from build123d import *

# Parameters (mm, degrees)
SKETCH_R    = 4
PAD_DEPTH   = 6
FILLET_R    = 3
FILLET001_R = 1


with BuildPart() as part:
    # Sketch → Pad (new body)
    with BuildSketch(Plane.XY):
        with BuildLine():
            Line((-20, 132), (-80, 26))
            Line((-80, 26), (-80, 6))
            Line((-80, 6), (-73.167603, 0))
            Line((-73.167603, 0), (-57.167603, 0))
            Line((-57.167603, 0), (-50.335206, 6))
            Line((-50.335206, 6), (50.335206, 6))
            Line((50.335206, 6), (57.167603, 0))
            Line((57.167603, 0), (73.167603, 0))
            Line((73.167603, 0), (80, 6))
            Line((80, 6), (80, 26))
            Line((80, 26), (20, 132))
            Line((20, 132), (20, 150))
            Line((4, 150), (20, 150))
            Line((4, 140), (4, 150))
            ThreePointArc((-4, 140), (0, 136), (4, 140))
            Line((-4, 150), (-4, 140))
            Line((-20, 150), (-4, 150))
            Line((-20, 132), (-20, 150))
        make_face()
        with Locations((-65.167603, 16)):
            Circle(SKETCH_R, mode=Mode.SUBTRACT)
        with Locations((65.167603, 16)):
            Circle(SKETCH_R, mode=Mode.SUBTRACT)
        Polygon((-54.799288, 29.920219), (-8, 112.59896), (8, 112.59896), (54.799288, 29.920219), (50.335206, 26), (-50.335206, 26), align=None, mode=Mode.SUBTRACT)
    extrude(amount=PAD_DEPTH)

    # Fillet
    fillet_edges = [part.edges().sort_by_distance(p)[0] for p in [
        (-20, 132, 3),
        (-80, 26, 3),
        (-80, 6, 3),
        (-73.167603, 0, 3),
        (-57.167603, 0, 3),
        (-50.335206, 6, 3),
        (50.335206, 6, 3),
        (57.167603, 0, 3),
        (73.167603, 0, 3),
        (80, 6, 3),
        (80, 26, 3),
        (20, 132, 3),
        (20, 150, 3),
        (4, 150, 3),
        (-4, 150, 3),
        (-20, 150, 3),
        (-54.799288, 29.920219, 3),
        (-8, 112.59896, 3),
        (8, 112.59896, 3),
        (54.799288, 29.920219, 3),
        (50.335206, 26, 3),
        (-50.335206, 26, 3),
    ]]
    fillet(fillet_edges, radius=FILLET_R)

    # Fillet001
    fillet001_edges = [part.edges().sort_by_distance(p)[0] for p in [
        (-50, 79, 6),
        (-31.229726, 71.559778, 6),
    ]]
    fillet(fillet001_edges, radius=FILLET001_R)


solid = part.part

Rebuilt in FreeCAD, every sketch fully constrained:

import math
import FreeCAD as App
import Part
import Sketcher
from FreeCAD import Vector
Q = App.Units.Quantity


def edges_at(feature, points):
    """Names of the edges that pass closest to the given points."""
    edges = feature.Shape.Edges
    near = lambda p: min(range(len(edges)), key=lambda i: edges[i].distToShape(Part.Vertex(*p))[0])
    return sorted({f"Edge{near(p) + 1}" for p in points})


def add_polygon(sketch, points):
    """Adds a closed chain of lines whose ends are joined by coincident constraints."""
    first, n = sketch.GeometryCount, len(points)
    for a, b in zip(points, points[1:] + points[:1]):
        sketch.addGeometry(Part.LineSegment(App.Vector(*a, 0), App.Vector(*b, 0)), False)
    for i in range(n):
        sketch.addConstraint(Sketcher.Constraint("Coincident", first + i, 2, first + (i + 1) % n, 1))

doc = App.newDocument("Part")
body = doc.addObject("PartDesign::Body", "Body")

sketch1 = body.newObject("Sketcher::SketchObject", "Sketch")
sketch1.AttachmentSupport = (doc.getObject("XY_Plane"), [""])
sketch1.MapMode = "FlatFace"
sketch1.addGeometry(Part.LineSegment(Vector(-20, 132, 0), Vector(-80, 26, 0)), False)
sketch1.addGeometry(Part.LineSegment(Vector(-80, 26, 0), Vector(-80, 6, 0)), False)
sketch1.addGeometry(Part.LineSegment(Vector(-80, 6, 0), Vector(-73.167603, 0, 0)), False)
sketch1.addGeometry(Part.LineSegment(Vector(-73.167603, 0, 0), Vector(-57.167603, 0, 0)), False)
sketch1.addGeometry(Part.LineSegment(Vector(-57.167603, 0, 0), Vector(-50.335206, 6, 0)), False)
sketch1.addGeometry(Part.LineSegment(Vector(-50.335206, 6, 0), Vector(50.335206, 6, 0)), False)
sketch1.addGeometry(Part.LineSegment(Vector(50.335206, 6, 0), Vector(57.167603, 0, 0)), False)
sketch1.addGeometry(Part.LineSegment(Vector(57.167603, 0, 0), Vector(73.167603, 0, 0)), False)
sketch1.addGeometry(Part.LineSegment(Vector(73.167603, 0, 0), Vector(80, 6, 0)), False)
sketch1.addGeometry(Part.LineSegment(Vector(80, 6, 0), Vector(80, 26, 0)), False)
sketch1.addGeometry(Part.LineSegment(Vector(80, 26, 0), Vector(20, 132, 0)), False)
sketch1.addGeometry(Part.LineSegment(Vector(20, 132, 0), Vector(20, 150, 0)), False)
sketch1.addGeometry(Part.LineSegment(Vector(20, 150, 0), Vector(4, 150, 0)), False)
sketch1.addGeometry(Part.LineSegment(Vector(4, 150, 0), Vector(4, 140, 0)), False)
sketch1.addGeometry(Part.ArcOfCircle(Part.Circle(Vector(0, 140, 0), Vector(0, 0, 1), 4), math.radians(180), math.radians(360)), False)
sketch1.addGeometry(Part.LineSegment(Vector(-4, 140, 0), Vector(-4, 150, 0)), False)
sketch1.addGeometry(Part.LineSegment(Vector(-4, 150, 0), Vector(-20, 150, 0)), False)
sketch1.addGeometry(Part.LineSegment(Vector(-20, 150, 0), Vector(-20, 132, 0)), False)
sketch1.addGeometry(Part.Circle(Vector(-65.167603, 16, 0), Vector(0, 0, 1), 4), False)
sketch1.addGeometry(Part.Circle(Vector(65.167603, 16, 0), Vector(0, 0, 1), 4), False)
add_polygon(sketch1, [(-50.335206, 26), (-54.799288, 29.920219), (-8, 112.59896), (8, 112.59896), (54.799288, 29.920219), (50.335206, 26)])
sketch1.addConstraint(Sketcher.Constraint("Coincident", 0, 2, 1, 1))
sketch1.addConstraint(Sketcher.Constraint("Coincident", 1, 2, 2, 1))
sketch1.addConstraint(Sketcher.Constraint("Coincident", 2, 2, 3, 1))
sketch1.addConstraint(Sketcher.Constraint("Coincident", 3, 2, 4, 1))
sketch1.addConstraint(Sketcher.Constraint("Coincident", 4, 2, 5, 1))
sketch1.addConstraint(Sketcher.Constraint("Coincident", 5, 2, 6, 1))
sketch1.addConstraint(Sketcher.Constraint("Coincident", 6, 2, 7, 1))
sketch1.addConstraint(Sketcher.Constraint("Coincident", 7, 2, 8, 1))
sketch1.addConstraint(Sketcher.Constraint("Coincident", 8, 2, 9, 1))
sketch1.addConstraint(Sketcher.Constraint("Coincident", 9, 2, 10, 1))
sketch1.addConstraint(Sketcher.Constraint("Coincident", 10, 2, 11, 1))
sketch1.addConstraint(Sketcher.Constraint("Coincident", 11, 2, 12, 1))
sketch1.addConstraint(Sketcher.Constraint("Coincident", 12, 2, 13, 1))
sketch1.addConstraint(Sketcher.Constraint("Tangent", 13, 2, 14, 2))
sketch1.addConstraint(Sketcher.Constraint("Tangent", 14, 1, 15, 1))
sketch1.addConstraint(Sketcher.Constraint("Coincident", 15, 2, 16, 1))
sketch1.addConstraint(Sketcher.Constraint("Coincident", 16, 2, 17, 1))
sketch1.addConstraint(Sketcher.Constraint("Coincident", 17, 2, 0, 1))
sketch1.addConstraint(Sketcher.Constraint("Vertical", 1))
sketch1.addConstraint(Sketcher.Constraint("Horizontal", 3))
sketch1.addConstraint(Sketcher.Constraint("Horizontal", 5))
sketch1.addConstraint(Sketcher.Constraint("Horizontal", 7))
sketch1.addConstraint(Sketcher.Constraint("Vertical", 9))
sketch1.addConstraint(Sketcher.Constraint("Vertical", 11))
sketch1.addConstraint(Sketcher.Constraint("Horizontal", 12))
sketch1.addConstraint(Sketcher.Constraint("Vertical", 13))
sketch1.addConstraint(Sketcher.Constraint("Vertical", 15))
sketch1.addConstraint(Sketcher.Constraint("Horizontal", 16))
sketch1.addConstraint(Sketcher.Constraint("Vertical", 17))
sketch1.addConstraint(Sketcher.Constraint("Horizontal", 22))
sketch1.addConstraint(Sketcher.Constraint("Horizontal", 25))
sketch1.addConstraint(Sketcher.Constraint("Equal", 14, 18))
sketch1.addConstraint(Sketcher.Constraint("Equal", 18, 19))
sketch1.addConstraint(Sketcher.Constraint("Symmetric", 3, 2, 6, 2, -1, 1))
sketch1.addConstraint(Sketcher.Constraint("Symmetric", 18, 3, 19, 3, -2))
sketch1.addConstraint(Sketcher.Constraint("Symmetric", 2, 2, 7, 2, -2))
sketch1.addConstraint(Sketcher.Constraint("Symmetric", 1, 2, 8, 2, -2))
sketch1.addConstraint(Sketcher.Constraint("Symmetric", 12, 2, 15, 2, -2))
sketch1.addConstraint(Sketcher.Constraint("Symmetric", 10, 2, 17, 2, -2))
sketch1.addConstraint(Sketcher.Constraint("Symmetric", 20, 2, 23, 2, -2))
sketch1.addConstraint(Sketcher.Constraint("Parallel", 2, 6))
sketch1.addConstraint(Sketcher.Constraint("Parallel", 4, 8))
sketch1.addConstraint(Sketcher.Constraint("Parallel", 6, 20))
sketch1.addConstraint(Sketcher.Constraint("Parallel", 0, 21))
sketch1.addConstraint(Sketcher.Constraint("Parallel", 10, 23))
sketch1.addConstraint(Sketcher.Constraint("Parallel", 8, 24))
sketch1.addConstraint(Sketcher.Constraint("Horizontal", 1, 2, 4, 2))
sketch1.addConstraint(Sketcher.Constraint("Horizontal", 0, 2, 9, 2))
sketch1.addConstraint(Sketcher.Constraint("Horizontal", 9, 2, 24, 2))
sketch1.addConstraint(Sketcher.Constraint("Vertical", 5, 2, 24, 2))
sketch1.addConstraint(Sketcher.Constraint("Equal", 7, 12))
sketch1.addConstraint(Sketcher.Constraint("Equal", 16, 22))
sketch1.addConstraint(Sketcher.Constraint("Diameter", 18, Q("8 mm")))
sketch1.addConstraint(Sketcher.Constraint("DistanceX", 3, 1, 3, 2, Q("16 mm")))
sketch1.addConstraint(Sketcher.Constraint("DistanceY", 1, 2, 1, 1, Q("20 mm")))
sketch1.addConstraint(Sketcher.Constraint("DistanceY", 11, 1, 11, 2, Q("18 mm")))
sketch1.addConstraint(Sketcher.Constraint("DistanceY", 13, 2, 13, 1, Q("10 mm")))
sketch1.addConstraint(Sketcher.Constraint("DistanceY", -1, 1, 14, 3, Q("140 mm")))
sketch1.addConstraint(Sketcher.Constraint("DistanceY", -1, 1, 18, 3, Q("16 mm")))
sketch1.addConstraint(Sketcher.Constraint("DistanceX", 0, 2, -1, 1, Q("80 mm")))
sketch1.addConstraint(Sketcher.Constraint("DistanceY", -1, 1, 0, 2, Q("26 mm")))
sketch1.addConstraint(Sketcher.Constraint("DistanceX", 2, 2, 18, 3, Q("8 mm")))
sketch1.addConstraint(Sketcher.Constraint("DistanceX", 5, 1, 5, 2, Q("100.670412 mm")))
sketch1.addConstraint(Sketcher.Constraint("DistanceY", -1, 1, 20, 2, Q("29.920219 mm")))
pad1 = body.newObject("PartDesign::Pad", "Pad")
pad1.Profile = sketch1
pad1.Length = 6
doc.recompute()

fillet = body.newObject("PartDesign::Fillet", "Fillet")
fillet.Base = (pad1, edges_at(pad1, [
    (-20, 132, 3),
    (-80, 26, 3),
    (-80, 6, 3),
    (-73.168, 0, 3),
    (-57.168, 0, 3),
    (-50.335, 6, 3),
    (50.335, 6, 3),
    (57.168, 0, 3),
    (73.168, 0, 3),
    (80, 6, 3),
    (80, 26, 3),
    (20, 132, 3),
    (20, 150, 3),
    (4, 150, 3),
    (-4, 150, 3),
    (-20, 150, 3),
    (-54.799, 29.92, 3),
    (-8, 112.599, 3),
    (8, 112.599, 3),
    (54.799, 29.92, 3),
    (50.335, 26, 3),
    (-50.335, 26, 3),
]))
fillet.Radius = 3
doc.recompute()

fillet2 = body.newObject("PartDesign::Fillet", "Fillet001")
fillet2.Base = (fillet, edges_at(fillet, [(-50, 79, 6), (-31.23, 71.56, 6)]))
fillet2.Radius = 1

doc.recompute()
